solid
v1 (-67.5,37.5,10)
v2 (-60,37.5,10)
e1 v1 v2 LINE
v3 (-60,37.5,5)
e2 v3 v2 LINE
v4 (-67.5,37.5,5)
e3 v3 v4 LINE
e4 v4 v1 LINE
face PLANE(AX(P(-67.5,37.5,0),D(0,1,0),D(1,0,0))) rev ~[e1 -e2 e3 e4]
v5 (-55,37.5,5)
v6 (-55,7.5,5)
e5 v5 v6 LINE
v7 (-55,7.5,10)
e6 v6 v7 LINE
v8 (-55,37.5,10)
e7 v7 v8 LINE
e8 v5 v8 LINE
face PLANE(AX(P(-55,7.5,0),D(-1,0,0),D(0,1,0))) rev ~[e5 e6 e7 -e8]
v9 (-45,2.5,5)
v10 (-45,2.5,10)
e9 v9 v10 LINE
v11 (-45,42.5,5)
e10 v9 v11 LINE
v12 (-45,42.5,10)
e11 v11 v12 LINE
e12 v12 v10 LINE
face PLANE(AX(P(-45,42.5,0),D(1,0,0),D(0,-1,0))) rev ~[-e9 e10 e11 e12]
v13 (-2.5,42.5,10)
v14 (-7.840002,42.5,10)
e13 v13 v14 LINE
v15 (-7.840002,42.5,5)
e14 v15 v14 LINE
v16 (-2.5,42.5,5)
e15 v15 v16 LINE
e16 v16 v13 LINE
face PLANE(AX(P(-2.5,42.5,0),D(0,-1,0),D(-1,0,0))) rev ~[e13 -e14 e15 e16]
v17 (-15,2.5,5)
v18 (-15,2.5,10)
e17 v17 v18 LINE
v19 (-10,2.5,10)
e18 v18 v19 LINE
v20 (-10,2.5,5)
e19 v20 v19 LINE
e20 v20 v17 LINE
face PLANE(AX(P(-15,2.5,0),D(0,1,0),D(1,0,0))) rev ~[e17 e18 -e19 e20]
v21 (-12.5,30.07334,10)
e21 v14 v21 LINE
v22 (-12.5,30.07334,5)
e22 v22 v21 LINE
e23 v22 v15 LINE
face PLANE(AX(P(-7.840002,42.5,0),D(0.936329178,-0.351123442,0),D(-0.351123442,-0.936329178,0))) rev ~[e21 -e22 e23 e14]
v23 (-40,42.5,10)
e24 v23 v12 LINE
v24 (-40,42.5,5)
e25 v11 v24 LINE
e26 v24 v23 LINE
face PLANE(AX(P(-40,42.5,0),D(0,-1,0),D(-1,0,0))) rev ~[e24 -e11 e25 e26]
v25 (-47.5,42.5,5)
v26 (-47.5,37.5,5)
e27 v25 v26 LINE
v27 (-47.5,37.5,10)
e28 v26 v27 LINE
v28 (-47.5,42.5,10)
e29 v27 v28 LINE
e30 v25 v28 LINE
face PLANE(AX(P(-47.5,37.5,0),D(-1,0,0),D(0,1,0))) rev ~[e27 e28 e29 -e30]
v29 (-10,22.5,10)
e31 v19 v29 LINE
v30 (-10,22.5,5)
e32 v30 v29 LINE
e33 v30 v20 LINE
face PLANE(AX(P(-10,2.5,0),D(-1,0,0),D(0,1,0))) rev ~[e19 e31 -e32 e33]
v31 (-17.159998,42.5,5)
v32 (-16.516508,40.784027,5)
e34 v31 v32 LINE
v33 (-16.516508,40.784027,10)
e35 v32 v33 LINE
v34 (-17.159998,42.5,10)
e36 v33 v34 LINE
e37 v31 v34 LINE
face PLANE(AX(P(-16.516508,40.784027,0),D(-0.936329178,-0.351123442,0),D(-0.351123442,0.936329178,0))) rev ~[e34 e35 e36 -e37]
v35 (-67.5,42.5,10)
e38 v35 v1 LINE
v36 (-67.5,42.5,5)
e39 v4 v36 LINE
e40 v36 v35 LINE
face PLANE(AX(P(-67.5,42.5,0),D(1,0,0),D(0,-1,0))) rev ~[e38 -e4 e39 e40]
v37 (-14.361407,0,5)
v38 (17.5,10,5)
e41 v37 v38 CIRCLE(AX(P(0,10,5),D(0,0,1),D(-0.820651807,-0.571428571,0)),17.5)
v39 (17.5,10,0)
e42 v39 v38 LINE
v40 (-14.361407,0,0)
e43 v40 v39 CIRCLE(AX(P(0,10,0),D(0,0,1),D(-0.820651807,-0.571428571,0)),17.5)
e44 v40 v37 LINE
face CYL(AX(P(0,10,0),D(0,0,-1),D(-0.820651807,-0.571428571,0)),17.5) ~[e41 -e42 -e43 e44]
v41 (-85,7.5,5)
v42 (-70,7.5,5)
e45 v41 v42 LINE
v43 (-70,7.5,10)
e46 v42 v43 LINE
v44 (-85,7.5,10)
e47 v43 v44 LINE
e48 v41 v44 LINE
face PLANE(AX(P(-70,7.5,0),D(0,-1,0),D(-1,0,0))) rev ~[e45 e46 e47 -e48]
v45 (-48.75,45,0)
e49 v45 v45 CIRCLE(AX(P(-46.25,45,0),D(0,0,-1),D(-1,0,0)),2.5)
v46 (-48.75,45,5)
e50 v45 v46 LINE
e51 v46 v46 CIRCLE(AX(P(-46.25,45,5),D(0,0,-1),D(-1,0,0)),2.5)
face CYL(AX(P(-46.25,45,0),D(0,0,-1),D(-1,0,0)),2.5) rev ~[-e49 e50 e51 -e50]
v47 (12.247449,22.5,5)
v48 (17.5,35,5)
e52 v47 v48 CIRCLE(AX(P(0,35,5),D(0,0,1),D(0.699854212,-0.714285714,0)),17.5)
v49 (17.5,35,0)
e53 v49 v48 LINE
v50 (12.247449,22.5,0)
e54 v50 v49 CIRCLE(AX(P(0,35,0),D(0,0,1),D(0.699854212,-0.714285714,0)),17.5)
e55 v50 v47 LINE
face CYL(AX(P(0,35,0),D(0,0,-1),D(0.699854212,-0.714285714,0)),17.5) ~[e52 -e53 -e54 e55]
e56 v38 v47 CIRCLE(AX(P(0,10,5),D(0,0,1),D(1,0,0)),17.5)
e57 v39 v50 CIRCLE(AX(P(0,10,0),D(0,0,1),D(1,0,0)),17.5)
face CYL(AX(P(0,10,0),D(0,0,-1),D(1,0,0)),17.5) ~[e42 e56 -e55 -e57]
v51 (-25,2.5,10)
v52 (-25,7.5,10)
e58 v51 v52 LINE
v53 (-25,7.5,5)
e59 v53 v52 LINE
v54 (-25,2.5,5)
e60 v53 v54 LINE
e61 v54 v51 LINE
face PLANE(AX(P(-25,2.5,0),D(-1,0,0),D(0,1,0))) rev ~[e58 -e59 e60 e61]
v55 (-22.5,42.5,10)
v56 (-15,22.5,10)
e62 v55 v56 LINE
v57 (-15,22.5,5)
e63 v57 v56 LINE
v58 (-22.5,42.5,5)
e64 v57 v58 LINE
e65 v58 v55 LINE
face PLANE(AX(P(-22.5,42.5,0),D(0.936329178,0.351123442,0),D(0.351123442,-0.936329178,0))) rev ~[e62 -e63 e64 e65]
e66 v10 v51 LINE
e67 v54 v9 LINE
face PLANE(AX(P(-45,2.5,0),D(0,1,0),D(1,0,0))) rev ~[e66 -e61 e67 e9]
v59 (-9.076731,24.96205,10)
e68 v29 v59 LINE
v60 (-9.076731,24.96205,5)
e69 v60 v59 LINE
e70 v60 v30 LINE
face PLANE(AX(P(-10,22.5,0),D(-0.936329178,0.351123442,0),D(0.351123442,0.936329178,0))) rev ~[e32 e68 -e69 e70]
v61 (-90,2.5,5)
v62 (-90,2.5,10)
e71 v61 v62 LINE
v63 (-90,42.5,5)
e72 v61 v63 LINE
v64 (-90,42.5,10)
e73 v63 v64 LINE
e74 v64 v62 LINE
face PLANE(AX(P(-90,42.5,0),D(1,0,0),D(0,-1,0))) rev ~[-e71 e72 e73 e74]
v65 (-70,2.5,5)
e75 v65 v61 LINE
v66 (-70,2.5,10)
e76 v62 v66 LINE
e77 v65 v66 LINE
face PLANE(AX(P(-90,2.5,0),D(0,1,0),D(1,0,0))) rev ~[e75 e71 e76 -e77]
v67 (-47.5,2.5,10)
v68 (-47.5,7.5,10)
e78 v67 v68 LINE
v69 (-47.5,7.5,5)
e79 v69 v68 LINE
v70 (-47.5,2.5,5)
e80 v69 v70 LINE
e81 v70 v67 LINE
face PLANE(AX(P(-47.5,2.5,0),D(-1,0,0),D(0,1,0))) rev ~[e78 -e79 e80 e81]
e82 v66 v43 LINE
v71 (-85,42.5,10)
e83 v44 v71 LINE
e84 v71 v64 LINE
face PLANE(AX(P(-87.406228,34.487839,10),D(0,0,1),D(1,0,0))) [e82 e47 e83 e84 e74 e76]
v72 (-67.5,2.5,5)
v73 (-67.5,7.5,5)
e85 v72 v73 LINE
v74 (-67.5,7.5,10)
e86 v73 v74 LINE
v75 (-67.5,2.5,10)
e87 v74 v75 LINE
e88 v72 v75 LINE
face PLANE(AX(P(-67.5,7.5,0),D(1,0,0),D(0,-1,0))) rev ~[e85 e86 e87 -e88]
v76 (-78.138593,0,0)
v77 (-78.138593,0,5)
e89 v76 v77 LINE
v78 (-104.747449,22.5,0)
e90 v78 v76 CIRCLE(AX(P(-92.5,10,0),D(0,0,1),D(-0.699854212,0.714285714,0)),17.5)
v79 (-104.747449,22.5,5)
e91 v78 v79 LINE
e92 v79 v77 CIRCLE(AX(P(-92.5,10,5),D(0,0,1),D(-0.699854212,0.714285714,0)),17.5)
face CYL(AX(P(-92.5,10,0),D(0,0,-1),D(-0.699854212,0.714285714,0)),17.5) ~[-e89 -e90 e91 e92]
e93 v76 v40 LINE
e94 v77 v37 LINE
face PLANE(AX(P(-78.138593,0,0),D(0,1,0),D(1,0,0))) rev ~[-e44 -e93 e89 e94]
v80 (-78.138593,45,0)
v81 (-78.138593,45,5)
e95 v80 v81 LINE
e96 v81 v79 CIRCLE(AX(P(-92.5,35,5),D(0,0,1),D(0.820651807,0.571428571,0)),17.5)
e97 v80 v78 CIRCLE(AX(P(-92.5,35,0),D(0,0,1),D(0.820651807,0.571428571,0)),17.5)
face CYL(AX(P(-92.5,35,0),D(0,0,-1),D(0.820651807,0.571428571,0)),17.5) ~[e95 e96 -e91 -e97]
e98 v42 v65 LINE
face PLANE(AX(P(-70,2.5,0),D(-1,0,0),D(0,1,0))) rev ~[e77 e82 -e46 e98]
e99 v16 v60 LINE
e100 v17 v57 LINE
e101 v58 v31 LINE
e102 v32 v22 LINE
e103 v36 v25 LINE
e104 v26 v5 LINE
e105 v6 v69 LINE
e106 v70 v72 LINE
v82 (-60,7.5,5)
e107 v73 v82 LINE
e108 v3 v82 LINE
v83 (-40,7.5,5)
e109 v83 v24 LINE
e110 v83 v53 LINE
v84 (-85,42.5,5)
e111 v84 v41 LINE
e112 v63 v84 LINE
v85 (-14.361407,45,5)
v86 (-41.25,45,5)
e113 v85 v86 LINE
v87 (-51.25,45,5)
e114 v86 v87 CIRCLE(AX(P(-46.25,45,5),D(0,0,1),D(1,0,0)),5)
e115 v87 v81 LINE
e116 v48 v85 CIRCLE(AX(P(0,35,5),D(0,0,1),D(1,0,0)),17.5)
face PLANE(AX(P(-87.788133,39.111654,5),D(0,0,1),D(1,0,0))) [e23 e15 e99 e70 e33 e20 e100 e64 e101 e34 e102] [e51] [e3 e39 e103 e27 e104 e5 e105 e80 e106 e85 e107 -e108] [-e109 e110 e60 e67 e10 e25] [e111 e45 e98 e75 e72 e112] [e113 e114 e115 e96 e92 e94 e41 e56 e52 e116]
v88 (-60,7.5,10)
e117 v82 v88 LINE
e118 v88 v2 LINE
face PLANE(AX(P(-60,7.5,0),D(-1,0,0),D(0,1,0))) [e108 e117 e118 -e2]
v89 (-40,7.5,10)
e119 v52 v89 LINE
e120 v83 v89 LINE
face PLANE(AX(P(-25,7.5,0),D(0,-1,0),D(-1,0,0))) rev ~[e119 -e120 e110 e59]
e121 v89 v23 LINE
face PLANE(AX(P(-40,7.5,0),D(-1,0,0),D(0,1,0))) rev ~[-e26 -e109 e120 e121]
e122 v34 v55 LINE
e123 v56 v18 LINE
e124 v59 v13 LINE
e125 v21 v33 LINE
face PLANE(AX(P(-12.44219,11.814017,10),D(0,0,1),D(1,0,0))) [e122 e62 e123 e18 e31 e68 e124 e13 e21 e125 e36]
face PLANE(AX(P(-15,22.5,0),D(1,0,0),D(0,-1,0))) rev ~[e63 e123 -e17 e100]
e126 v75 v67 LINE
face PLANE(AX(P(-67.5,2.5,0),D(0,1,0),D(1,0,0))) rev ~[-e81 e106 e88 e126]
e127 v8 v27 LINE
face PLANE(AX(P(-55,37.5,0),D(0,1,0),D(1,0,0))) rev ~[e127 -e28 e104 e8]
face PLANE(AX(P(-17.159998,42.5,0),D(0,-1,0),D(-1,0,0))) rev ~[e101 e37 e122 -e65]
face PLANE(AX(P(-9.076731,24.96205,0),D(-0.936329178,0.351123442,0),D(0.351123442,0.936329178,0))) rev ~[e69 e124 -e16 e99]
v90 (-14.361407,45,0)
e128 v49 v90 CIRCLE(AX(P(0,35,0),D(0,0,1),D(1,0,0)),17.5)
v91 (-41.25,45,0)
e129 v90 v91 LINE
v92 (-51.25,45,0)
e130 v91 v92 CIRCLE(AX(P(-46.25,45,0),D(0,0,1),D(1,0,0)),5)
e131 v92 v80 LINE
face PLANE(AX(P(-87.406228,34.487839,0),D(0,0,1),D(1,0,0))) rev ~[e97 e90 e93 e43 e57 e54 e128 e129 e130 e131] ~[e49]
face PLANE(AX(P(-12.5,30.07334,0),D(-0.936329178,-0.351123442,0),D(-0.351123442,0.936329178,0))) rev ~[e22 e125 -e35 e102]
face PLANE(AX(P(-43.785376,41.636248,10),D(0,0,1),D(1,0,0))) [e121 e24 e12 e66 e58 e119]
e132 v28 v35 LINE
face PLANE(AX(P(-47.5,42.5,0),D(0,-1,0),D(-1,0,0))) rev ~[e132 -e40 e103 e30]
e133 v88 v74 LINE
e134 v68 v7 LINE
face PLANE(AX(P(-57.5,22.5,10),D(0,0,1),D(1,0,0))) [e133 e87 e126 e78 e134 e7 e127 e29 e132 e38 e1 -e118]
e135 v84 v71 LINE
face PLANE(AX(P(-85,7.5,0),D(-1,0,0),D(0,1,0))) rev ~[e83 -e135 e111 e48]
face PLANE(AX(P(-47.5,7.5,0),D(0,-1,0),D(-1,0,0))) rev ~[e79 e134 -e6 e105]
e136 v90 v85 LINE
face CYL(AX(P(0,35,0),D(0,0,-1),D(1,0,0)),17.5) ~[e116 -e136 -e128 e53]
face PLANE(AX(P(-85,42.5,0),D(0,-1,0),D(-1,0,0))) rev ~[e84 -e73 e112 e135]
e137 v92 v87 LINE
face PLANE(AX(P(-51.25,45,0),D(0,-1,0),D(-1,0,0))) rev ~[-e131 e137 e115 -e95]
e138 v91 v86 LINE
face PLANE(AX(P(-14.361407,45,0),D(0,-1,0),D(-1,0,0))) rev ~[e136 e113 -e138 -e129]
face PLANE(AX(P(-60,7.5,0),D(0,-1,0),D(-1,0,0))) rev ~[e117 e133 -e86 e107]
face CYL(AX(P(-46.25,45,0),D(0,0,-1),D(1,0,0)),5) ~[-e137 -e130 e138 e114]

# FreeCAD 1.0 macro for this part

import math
import FreeCAD as App
import Part
import Sketcher

doc = App.newDocument("Part")
body = doc.addObject("PartDesign::Body", "Body")

# Sketch on XY plane
sketch1 = body.newObject("Sketcher::SketchObject", "Sketch")
sketch1.AttachmentSupport = (doc.getObject("XY_Plane"), [""])
sketch1.MapMode = "FlatFace"
sketch1.addGeometry([
    Part.ArcOfCircle(Part.Circle(App.Vector(0, 10, 0), App.Vector(0, 0, 1), 17.5), math.radians(0), math.radians(46)),  # 0
    Part.ArcOfCircle(Part.Circle(App.Vector(0, 35, 0), App.Vector(0, 0, 1), 17.5), math.radians(-46), math.radians(0)),  # 1
    Part.ArcOfCircle(Part.Circle(App.Vector(0, 35, 0), App.Vector(0, 0, 1), 17.5), math.radians(0), math.radians(145)),  # 2
    Part.LineSegment(App.Vector(-14.4, 45, 0), App.Vector(-41.2, 45, 0)),  # 3
    Part.ArcOfCircle(Part.Circle(App.Vector(-46.2, 45, 0), App.Vector(0, 0, 1), 5), math.radians(0), math.radians(180)),  # 4
    Part.LineSegment(App.Vector(-51.2, 45, 0), App.Vector(-78.1, 45, 0)),  # 5
    Part.ArcOfCircle(Part.Circle(App.Vector(-92.5, 35, 0), App.Vector(0, 0, 1), 17.5), math.radians(35), math.radians(226)),  # 6
    Part.ArcOfCircle(Part.Circle(App.Vector(-92.5, 10, 0), App.Vector(0, 0, 1), 17.5), math.radians(134), math.radians(325)),  # 7
    Part.LineSegment(App.Vector(-78.1, 0, 0), App.Vector(-14.4, 0, 0)),  # 8
    Part.ArcOfCircle(Part.Circle(App.Vector(0, 10, 0), App.Vector(0, 0, 1), 17.5), math.radians(-145), math.radians(0)),  # 9
    Part.LineSegment(App.Vector(-40, 7.5, 0), App.Vector(-45, 7.5, 0)),  # 10
    Part.LineSegment(App.Vector(-45, 7.5, 0), App.Vector(-45, 40.2, 0)),  # 11
    Part.ArcOfCircle(Part.Circle(App.Vector(-46.2, 45, 0), App.Vector(0, 0, 1), 5), math.radians(-76), math.radians(-30)),  # 12
    Part.LineSegment(App.Vector(-41.9, 42.5, 0), App.Vector(-40, 42.5, 0)),  # 13
    Part.LineSegment(App.Vector(-40, 42.5, 0), App.Vector(-40, 7.5, 0)),  # 14
    Part.Circle(App.Vector(-46.2, 45, 0), App.Vector(0, 0, 1), 2.5),  # 15
], False)
sketch1.addConstraint([
    Sketcher.Constraint("Coincident", 0, 2, 1, 1),
    Sketcher.Constraint("Tangent", 1, 2, 2, 1),
    Sketcher.Constraint("Coincident", 2, 2, 3, 1),
    Sketcher.Constraint("Coincident", 3, 2, 4, 1),
    Sketcher.Constraint("Coincident", 4, 2, 5, 1),
    Sketcher.Constraint("Coincident", 5, 2, 6, 1),
    Sketcher.Constraint("Coincident", 6, 2, 7, 1),
    Sketcher.Constraint("Coincident", 7, 2, 8, 1),
    Sketcher.Constraint("Coincident", 8, 2, 9, 1),
    Sketcher.Constraint("Tangent", 9, 2, 0, 1),
    Sketcher.Constraint("Coincident", 10, 2, 11, 1),
    Sketcher.Constraint("Coincident", 11, 2, 12, 1),
    Sketcher.Constraint("Coincident", 12, 2, 13, 1),
    Sketcher.Constraint("Coincident", 13, 2, 14, 1),
    Sketcher.Constraint("Coincident", 14, 2, 10, 1),
    Sketcher.Constraint("Horizontal", 3),
    Sketcher.Constraint("Horizontal", 5),
    Sketcher.Constraint("Horizontal", 8),
    Sketcher.Constraint("Horizontal", 10),
    Sketcher.Constraint("Vertical", 11),
    Sketcher.Constraint("Horizontal", 13),
    Sketcher.Constraint("Vertical", 14),
    Sketcher.Constraint("Coincident", 12, 3, 4, 3),
    Sketcher.Constraint("Coincident", 15, 3, 4, 3),
    Sketcher.Constraint("Equal", 0, 1),
    Sketcher.Constraint("Equal", 1, 2),
    Sketcher.Constraint("Equal", 2, 6),
    Sketcher.Constraint("Equal", 6, 7),
    Sketcher.Constraint("Equal", 7, 9),
    Sketcher.Constraint("Equal", 4, 12),
    Sketcher.Constraint("PointOnObject", 0, 3, -2),
    Sketcher.Constraint("PointOnObject", 1, 3, -2),
    Sketcher.Constraint("PointOnObject", 7, 2, -1),
    Sketcher.Constraint("Horizontal", 2, 3, 6, 3),
    Sketcher.Constraint("Horizontal", 0, 3, 7, 3),
    Sketcher.Constraint("Horizontal", 6, 3, 1, 2),
    Sketcher.Constraint("Horizontal", 15, 3, 2, 2),
    Sketcher.Constraint("Horizontal", 3, 2, 4, 2),
    Sketcher.Constraint("Horizontal", 0, 2, 6, 2),
    Sketcher.Constraint("Horizontal", 7, 3, 9, 2),
    Sketcher.Constraint("Vertical", 5, 2, 7, 2),
    Sketcher.Constraint("Equal", 3, 5),
    Sketcher.Constraint("Diameter", 15, 5.0),
    Sketcher.Constraint("Radius", 4, 5.0),
    Sketcher.Constraint("Radius", 0, 17.5),
    Sketcher.Constraint("DistanceX", 10, 2, 10, 1, 5.0),
    Sketcher.Constraint("DistanceY", 14, 2, 14, 1, 35.0),
    Sketcher.Constraint("DistanceY", -1, 1, 0, 3, 10.0),
    Sketcher.Constraint("DistanceY", -1, 1, 1, 3, 35.0),
    Sketcher.Constraint("DistanceX", 10, 2, -1, 1, 45.0),
    Sketcher.Constraint("DistanceX", 6, 3, -1, 1, 92.5),
    Sketcher.Constraint("DistanceY", -1, 1, 10, 2, 7.5),
])
pad1 = body.newObject("PartDesign::Pad", "Pad")
pad1.Profile = sketch1
pad1.Length = 5

# Sketch on XY plane
sketch2 = body.newObject("Sketcher::SketchObject", "Sketch001")
sketch2.AttachmentSupport = (doc.getObject("XY_Plane"), [""])
sketch2.MapMode = "FlatFace"
sketch2.addGeometry([
    Part.LineSegment(App.Vector(-85, 42.5, 0), App.Vector(-90, 42.5, 0)),  # 0
    Part.LineSegment(App.Vector(-90, 42.5, 0), App.Vector(-90, 2.5, 0)),  # 1
    Part.LineSegment(App.Vector(-90, 2.5, 0), App.Vector(-70, 2.5, 0)),  # 2
    Part.LineSegment(App.Vector(-70, 2.5, 0), App.Vector(-70, 7.5, 0)),  # 3
    Part.LineSegment(App.Vector(-70, 7.5, 0), App.Vector(-85, 7.5, 0)),  # 4
    Part.LineSegment(App.Vector(-85, 7.5, 0), App.Vector(-85, 42.5, 0)),  # 5
    Part.LineSegment(App.Vector(-60, 37.5, 0), App.Vector(-60, 7.5, 0)),  # 6
    Part.LineSegment(App.Vector(-60, 7.5, 0), App.Vector(-67.5, 7.5, 0)),  # 7
    Part.LineSegment(App.Vector(-67.5, 7.5, 0), App.Vector(-67.5, 2.5, 0)),  # 8
    Part.LineSegment(App.Vector(-67.5, 2.5, 0), App.Vector(-47.5, 2.5, 0)),  # 9
    Part.LineSegment(App.Vector(-47.5, 2.5, 0), App.Vector(-47.5, 7.5, 0)),  # 10
    Part.LineSegment(App.Vector(-47.5, 7.5, 0), App.Vector(-55, 7.5, 0)),  # 11
    Part.LineSegment(App.Vector(-55, 7.5, 0), App.Vector(-55, 37.5, 0)),  # 12
    Part.LineSegment(App.Vector(-55, 37.5, 0), App.Vector(-47.5, 37.5, 0)),  # 13
    Part.LineSegment(App.Vector(-47.5, 37.5, 0), App.Vector(-47.5, 42.5, 0)),  # 14
    Part.LineSegment(App.Vector(-47.5, 42.5, 0), App.Vector(-67.5, 42.5, 0)),  # 15
    Part.LineSegment(App.Vector(-67.5, 42.5, 0), App.Vector(-67.5, 37.5, 0)),  # 16
    Part.LineSegment(App.Vector(-67.5, 37.5, 0), App.Vector(-60, 37.5, 0)),  # 17
    Part.LineSegment(App.Vector(-45, 42.5, 0), App.Vector(-45, 2.5, 0)),  # 18
    Part.LineSegment(App.Vector(-45, 2.5, 0), App.Vector(-25, 2.5, 0)),  # 19
    Part.LineSegment(App.Vector(-25, 2.5, 0), App.Vector(-25, 7.5, 0)),  # 20
    Part.LineSegment(App.Vector(-25, 7.5, 0), App.Vector(-40, 7.5, 0)),  # 21
    Part.LineSegment(App.Vector(-40, 7.5, 0), App.Vector(-40, 42.5, 0)),  # 22
    Part.LineSegment(App.Vector(-40, 42.5, 0), App.Vector(-45, 42.5, 0)),  # 23
    Part.LineSegment(App.Vector(-15, 2.5, 0), App.Vector(-10, 2.5, 0)),  # 24
    Part.LineSegment(App.Vector(-10, 2.5, 0), App.Vector(-10, 22.5, 0)),  # 25
    Part.LineSegment(App.Vector(-10, 22.5, 0), App.Vector(-9.1, 25, 0)),  # 26
    Part.LineSegment(App.Vector(-9.1, 25, 0), App.Vector(-2.5, 42.5, 0)),  # 27
    Part.LineSegment(App.Vector(-2.5, 42.5, 0), App.Vector(-7.8, 42.5, 0)),  # 28
    Part.LineSegment(App.Vector(-7.8, 42.5, 0), App.Vector(-12.5, 30.1, 0)),  # 29
    Part.LineSegment(App.Vector(-12.5, 30.1, 0), App.Vector(-16.5, 40.8, 0)),  # 30
    Part.LineSegment(App.Vector(-16.5, 40.8, 0), App.Vector(-17.2, 42.5, 0)),  # 31
    Part.LineSegment(App.Vector(-17.2, 42.5, 0), App.Vector(-22.5, 42.5, 0)),  # 32
    Part.LineSegment(App.Vector(-22.5, 42.5, 0), App.Vector(-15, 22.5, 0)),  # 33
    Part.LineSegment(App.Vector(-15, 22.5, 0), App.Vector(-15, 2.5, 0)),  # 34
], False)
sketch2.addConstraint([
    Sketcher.Constraint("Coincident", 0, 2, 1, 1),
    Sketcher.Constraint("Coincident", 1, 2, 2, 1),
    Sketcher.Constraint("Coincident", 2, 2, 3, 1),
    Sketcher.Constraint("Coincident", 3, 2, 4, 1),
    Sketcher.Constraint("Coincident", 4, 2, 5, 1),
    Sketcher.Constraint("Coincident", 5, 2, 0, 1),
    Sketcher.Constraint("Coincident", 6, 2, 7, 1),
    Sketcher.Constraint("Coincident", 7, 2, 8, 1),
    Sketcher.Constraint("Coincident", 8, 2, 9, 1),
    Sketcher.Constraint("Coincident", 9, 2, 10, 1),
    Sketcher.Constraint("Coincident", 10, 2, 11, 1),
    Sketcher.Constraint("Coincident", 11, 2, 12, 1),
    Sketcher.Constraint("Coincident", 12, 2, 13, 1),
    Sketcher.Constraint("Coincident", 13, 2, 14, 1),
    Sketcher.Constraint("Coincident", 14, 2, 15, 1),
    Sketcher.Constraint("Coincident", 15, 2, 16, 1),
    Sketcher.Constraint("Coincident", 16, 2, 17, 1),
    Sketcher.Constraint("Coincident", 17, 2, 6, 1),
    Sketcher.Constraint("Coincident", 18, 2, 19, 1),
    Sketcher.Constraint("Coincident", 19, 2, 20, 1),
    Sketcher.Constraint("Coincident", 20, 2, 21, 1),
    Sketcher.Constraint("Coincident", 21, 2, 22, 1),
    Sketcher.Constraint("Coincident", 22, 2, 23, 1),
    Sketcher.Constraint("Coincident", 23, 2, 18, 1),
    Sketcher.Constraint("Coincident", 24, 2, 25, 1),
    Sketcher.Constraint("Coincident", 25, 2, 26, 1),
    Sketcher.Constraint("Coincident", 26, 2, 27, 1),
    Sketcher.Constraint("Coincident", 27, 2, 28, 1),
    Sketcher.Constraint("Coincident", 28, 2, 29, 1),
    Sketcher.Constraint("Coincident", 29, 2, 30, 1),
    Sketcher.Constraint("Coincident", 30, 2, 31, 1),
    Sketcher.Constraint("Coincident", 31, 2, 32, 1),
    Sketcher.Constraint("Coincident", 32, 2, 33, 1),
    Sketcher.Constraint("Coincident", 33, 2, 34, 1),
    Sketcher.Constraint("Coincident", 34, 2, 24, 1),
    Sketcher.Constraint("Horizontal", 0),
    Sketcher.Constraint("Vertical", 1),
    Sketcher.Constraint("Horizontal", 2),
    Sketcher.Constraint("Vertical", 3),
    Sketcher.Constraint("Horizontal", 4),
    Sketcher.Constraint("Vertical", 5),
    Sketcher.Constraint("Vertical", 6),
    Sketcher.Constraint("Horizontal", 7),
    Sketcher.Constraint("Vertical", 8),
    Sketcher.Constraint("Horizontal", 9),
    Sketcher.Constraint("Vertical", 10),
    Sketcher.Constraint("Horizontal", 11),
    Sketcher.Constraint("Vertical", 12),
    Sketcher.Constraint("Horizontal", 13),
    Sketcher.Constraint("Vertical", 14),
    Sketcher.Constraint("Horizontal", 15),
    Sketcher.Constraint("Vertical", 16),
    Sketcher.Constraint("Horizontal", 17),
    Sketcher.Constraint("Vertical", 18),
    Sketcher.Constraint("Horizontal", 19),
    Sketcher.Constraint("Vertical", 20),
    Sketcher.Constraint("Horizontal", 21),
    Sketcher.Constraint("Vertical", 22),
    Sketcher.Constraint("Horizontal", 23),
    Sketcher.Constraint("Horizontal", 24),
    Sketcher.Constraint("Vertical", 25),
    Sketcher.Constraint("Horizontal", 28),
    Sketcher.Constraint("Horizontal", 32),
    Sketcher.Constraint("Vertical", 34),
    Sketcher.Constraint("Parallel", 26, 27),
    Sketcher.Constraint("Parallel", 27, 29),
    Sketcher.Constraint("Parallel", 30, 31),
    Sketcher.Constraint("Parallel", 31, 33),
    Sketcher.Constraint("Horizontal", 4, 2, 6, 2),
    Sketcher.Constraint("Horizontal", 2, 2, 8, 2),
    Sketcher.Constraint("Horizontal", 7, 2, 10, 2),
    Sketcher.Constraint("Horizontal", 5, 2, 14, 2),
    Sketcher.Constraint("Horizontal", 13, 2, 16, 2),
    Sketcher.Constraint("Horizontal", 9, 2, 18, 2),
    Sketcher.Constraint("Horizontal", 11, 2, 20, 2),
    Sketcher.Constraint("Horizontal", 15, 2, 22, 2),
    Sketcher.Constraint("Horizontal", 19, 2, 24, 2),
    Sketcher.Constraint("Horizontal", 23, 2, 27, 2),
    Sketcher.Constraint("Horizontal", 28, 2, 31, 2),
    Sketcher.Constraint("Horizontal", 25, 2, 33, 2),
    Sketcher.Constraint("Vertical", 10, 2, 13, 2),
    Sketcher.Constraint("Vertical", 8, 2, 15, 2),
    Sketcher.Constraint("Equal", 2, 9),
    Sketcher.Constraint("Equal", 7, 11),
    Sketcher.Constraint("Equal", 15, 19),
    Sketcher.Constraint("Equal", 4, 21),
    Sketcher.Constraint("Equal", 23, 24),
    Sketcher.Constraint("Equal", 28, 32),
    Sketcher.Constraint("Equal", 24, 3),
    Sketcher.Constraint("Equal", 10, 14),
    Sketcher.Constraint("Equal", 19, 25),
    Sketcher.Constraint("DistanceX", 0, 2, 0, 1, 5.0),
    Sketcher.Constraint("DistanceX", 2, 1, 2, 2, 20.0),
    Sketcher.Constraint("DistanceY", 1, 2, 1, 1, 40.0),
    Sketcher.Constraint("DistanceX", 7, 2, 7, 1, 7.5),
    Sketcher.Constraint("DistanceX", 0, 2, -1, 1, 90.0),
    Sketcher.Constraint("DistanceX", 6, 2, -1, 1, 60.0),
    Sketcher.Constraint("DistanceX", 18, 2, -1, 1, 45.0),
    Sketcher.Constraint("DistanceX", 24, 2, -1, 1, 10.0),
    Sketcher.Constraint("DistanceX", 29, 2, 27, 2, 10.0),
    Sketcher.Constraint("DistanceX", 32, 2, 29, 2, 10.0),
    Sketcher.Constraint("DistanceY", -1, 1, 0, 2, 42.5),
    Sketcher.Constraint("Distance", 26, 2.629471),
    Sketcher.Constraint("Distance", 29, 13.271679),
    Sketcher.Constraint("Distance", 30, 11.439019),
])
pad2 = body.newObject("PartDesign::Pad", "Pad001")
pad2.Profile = sketch2
pad2.Length = 10

doc.recompute()
